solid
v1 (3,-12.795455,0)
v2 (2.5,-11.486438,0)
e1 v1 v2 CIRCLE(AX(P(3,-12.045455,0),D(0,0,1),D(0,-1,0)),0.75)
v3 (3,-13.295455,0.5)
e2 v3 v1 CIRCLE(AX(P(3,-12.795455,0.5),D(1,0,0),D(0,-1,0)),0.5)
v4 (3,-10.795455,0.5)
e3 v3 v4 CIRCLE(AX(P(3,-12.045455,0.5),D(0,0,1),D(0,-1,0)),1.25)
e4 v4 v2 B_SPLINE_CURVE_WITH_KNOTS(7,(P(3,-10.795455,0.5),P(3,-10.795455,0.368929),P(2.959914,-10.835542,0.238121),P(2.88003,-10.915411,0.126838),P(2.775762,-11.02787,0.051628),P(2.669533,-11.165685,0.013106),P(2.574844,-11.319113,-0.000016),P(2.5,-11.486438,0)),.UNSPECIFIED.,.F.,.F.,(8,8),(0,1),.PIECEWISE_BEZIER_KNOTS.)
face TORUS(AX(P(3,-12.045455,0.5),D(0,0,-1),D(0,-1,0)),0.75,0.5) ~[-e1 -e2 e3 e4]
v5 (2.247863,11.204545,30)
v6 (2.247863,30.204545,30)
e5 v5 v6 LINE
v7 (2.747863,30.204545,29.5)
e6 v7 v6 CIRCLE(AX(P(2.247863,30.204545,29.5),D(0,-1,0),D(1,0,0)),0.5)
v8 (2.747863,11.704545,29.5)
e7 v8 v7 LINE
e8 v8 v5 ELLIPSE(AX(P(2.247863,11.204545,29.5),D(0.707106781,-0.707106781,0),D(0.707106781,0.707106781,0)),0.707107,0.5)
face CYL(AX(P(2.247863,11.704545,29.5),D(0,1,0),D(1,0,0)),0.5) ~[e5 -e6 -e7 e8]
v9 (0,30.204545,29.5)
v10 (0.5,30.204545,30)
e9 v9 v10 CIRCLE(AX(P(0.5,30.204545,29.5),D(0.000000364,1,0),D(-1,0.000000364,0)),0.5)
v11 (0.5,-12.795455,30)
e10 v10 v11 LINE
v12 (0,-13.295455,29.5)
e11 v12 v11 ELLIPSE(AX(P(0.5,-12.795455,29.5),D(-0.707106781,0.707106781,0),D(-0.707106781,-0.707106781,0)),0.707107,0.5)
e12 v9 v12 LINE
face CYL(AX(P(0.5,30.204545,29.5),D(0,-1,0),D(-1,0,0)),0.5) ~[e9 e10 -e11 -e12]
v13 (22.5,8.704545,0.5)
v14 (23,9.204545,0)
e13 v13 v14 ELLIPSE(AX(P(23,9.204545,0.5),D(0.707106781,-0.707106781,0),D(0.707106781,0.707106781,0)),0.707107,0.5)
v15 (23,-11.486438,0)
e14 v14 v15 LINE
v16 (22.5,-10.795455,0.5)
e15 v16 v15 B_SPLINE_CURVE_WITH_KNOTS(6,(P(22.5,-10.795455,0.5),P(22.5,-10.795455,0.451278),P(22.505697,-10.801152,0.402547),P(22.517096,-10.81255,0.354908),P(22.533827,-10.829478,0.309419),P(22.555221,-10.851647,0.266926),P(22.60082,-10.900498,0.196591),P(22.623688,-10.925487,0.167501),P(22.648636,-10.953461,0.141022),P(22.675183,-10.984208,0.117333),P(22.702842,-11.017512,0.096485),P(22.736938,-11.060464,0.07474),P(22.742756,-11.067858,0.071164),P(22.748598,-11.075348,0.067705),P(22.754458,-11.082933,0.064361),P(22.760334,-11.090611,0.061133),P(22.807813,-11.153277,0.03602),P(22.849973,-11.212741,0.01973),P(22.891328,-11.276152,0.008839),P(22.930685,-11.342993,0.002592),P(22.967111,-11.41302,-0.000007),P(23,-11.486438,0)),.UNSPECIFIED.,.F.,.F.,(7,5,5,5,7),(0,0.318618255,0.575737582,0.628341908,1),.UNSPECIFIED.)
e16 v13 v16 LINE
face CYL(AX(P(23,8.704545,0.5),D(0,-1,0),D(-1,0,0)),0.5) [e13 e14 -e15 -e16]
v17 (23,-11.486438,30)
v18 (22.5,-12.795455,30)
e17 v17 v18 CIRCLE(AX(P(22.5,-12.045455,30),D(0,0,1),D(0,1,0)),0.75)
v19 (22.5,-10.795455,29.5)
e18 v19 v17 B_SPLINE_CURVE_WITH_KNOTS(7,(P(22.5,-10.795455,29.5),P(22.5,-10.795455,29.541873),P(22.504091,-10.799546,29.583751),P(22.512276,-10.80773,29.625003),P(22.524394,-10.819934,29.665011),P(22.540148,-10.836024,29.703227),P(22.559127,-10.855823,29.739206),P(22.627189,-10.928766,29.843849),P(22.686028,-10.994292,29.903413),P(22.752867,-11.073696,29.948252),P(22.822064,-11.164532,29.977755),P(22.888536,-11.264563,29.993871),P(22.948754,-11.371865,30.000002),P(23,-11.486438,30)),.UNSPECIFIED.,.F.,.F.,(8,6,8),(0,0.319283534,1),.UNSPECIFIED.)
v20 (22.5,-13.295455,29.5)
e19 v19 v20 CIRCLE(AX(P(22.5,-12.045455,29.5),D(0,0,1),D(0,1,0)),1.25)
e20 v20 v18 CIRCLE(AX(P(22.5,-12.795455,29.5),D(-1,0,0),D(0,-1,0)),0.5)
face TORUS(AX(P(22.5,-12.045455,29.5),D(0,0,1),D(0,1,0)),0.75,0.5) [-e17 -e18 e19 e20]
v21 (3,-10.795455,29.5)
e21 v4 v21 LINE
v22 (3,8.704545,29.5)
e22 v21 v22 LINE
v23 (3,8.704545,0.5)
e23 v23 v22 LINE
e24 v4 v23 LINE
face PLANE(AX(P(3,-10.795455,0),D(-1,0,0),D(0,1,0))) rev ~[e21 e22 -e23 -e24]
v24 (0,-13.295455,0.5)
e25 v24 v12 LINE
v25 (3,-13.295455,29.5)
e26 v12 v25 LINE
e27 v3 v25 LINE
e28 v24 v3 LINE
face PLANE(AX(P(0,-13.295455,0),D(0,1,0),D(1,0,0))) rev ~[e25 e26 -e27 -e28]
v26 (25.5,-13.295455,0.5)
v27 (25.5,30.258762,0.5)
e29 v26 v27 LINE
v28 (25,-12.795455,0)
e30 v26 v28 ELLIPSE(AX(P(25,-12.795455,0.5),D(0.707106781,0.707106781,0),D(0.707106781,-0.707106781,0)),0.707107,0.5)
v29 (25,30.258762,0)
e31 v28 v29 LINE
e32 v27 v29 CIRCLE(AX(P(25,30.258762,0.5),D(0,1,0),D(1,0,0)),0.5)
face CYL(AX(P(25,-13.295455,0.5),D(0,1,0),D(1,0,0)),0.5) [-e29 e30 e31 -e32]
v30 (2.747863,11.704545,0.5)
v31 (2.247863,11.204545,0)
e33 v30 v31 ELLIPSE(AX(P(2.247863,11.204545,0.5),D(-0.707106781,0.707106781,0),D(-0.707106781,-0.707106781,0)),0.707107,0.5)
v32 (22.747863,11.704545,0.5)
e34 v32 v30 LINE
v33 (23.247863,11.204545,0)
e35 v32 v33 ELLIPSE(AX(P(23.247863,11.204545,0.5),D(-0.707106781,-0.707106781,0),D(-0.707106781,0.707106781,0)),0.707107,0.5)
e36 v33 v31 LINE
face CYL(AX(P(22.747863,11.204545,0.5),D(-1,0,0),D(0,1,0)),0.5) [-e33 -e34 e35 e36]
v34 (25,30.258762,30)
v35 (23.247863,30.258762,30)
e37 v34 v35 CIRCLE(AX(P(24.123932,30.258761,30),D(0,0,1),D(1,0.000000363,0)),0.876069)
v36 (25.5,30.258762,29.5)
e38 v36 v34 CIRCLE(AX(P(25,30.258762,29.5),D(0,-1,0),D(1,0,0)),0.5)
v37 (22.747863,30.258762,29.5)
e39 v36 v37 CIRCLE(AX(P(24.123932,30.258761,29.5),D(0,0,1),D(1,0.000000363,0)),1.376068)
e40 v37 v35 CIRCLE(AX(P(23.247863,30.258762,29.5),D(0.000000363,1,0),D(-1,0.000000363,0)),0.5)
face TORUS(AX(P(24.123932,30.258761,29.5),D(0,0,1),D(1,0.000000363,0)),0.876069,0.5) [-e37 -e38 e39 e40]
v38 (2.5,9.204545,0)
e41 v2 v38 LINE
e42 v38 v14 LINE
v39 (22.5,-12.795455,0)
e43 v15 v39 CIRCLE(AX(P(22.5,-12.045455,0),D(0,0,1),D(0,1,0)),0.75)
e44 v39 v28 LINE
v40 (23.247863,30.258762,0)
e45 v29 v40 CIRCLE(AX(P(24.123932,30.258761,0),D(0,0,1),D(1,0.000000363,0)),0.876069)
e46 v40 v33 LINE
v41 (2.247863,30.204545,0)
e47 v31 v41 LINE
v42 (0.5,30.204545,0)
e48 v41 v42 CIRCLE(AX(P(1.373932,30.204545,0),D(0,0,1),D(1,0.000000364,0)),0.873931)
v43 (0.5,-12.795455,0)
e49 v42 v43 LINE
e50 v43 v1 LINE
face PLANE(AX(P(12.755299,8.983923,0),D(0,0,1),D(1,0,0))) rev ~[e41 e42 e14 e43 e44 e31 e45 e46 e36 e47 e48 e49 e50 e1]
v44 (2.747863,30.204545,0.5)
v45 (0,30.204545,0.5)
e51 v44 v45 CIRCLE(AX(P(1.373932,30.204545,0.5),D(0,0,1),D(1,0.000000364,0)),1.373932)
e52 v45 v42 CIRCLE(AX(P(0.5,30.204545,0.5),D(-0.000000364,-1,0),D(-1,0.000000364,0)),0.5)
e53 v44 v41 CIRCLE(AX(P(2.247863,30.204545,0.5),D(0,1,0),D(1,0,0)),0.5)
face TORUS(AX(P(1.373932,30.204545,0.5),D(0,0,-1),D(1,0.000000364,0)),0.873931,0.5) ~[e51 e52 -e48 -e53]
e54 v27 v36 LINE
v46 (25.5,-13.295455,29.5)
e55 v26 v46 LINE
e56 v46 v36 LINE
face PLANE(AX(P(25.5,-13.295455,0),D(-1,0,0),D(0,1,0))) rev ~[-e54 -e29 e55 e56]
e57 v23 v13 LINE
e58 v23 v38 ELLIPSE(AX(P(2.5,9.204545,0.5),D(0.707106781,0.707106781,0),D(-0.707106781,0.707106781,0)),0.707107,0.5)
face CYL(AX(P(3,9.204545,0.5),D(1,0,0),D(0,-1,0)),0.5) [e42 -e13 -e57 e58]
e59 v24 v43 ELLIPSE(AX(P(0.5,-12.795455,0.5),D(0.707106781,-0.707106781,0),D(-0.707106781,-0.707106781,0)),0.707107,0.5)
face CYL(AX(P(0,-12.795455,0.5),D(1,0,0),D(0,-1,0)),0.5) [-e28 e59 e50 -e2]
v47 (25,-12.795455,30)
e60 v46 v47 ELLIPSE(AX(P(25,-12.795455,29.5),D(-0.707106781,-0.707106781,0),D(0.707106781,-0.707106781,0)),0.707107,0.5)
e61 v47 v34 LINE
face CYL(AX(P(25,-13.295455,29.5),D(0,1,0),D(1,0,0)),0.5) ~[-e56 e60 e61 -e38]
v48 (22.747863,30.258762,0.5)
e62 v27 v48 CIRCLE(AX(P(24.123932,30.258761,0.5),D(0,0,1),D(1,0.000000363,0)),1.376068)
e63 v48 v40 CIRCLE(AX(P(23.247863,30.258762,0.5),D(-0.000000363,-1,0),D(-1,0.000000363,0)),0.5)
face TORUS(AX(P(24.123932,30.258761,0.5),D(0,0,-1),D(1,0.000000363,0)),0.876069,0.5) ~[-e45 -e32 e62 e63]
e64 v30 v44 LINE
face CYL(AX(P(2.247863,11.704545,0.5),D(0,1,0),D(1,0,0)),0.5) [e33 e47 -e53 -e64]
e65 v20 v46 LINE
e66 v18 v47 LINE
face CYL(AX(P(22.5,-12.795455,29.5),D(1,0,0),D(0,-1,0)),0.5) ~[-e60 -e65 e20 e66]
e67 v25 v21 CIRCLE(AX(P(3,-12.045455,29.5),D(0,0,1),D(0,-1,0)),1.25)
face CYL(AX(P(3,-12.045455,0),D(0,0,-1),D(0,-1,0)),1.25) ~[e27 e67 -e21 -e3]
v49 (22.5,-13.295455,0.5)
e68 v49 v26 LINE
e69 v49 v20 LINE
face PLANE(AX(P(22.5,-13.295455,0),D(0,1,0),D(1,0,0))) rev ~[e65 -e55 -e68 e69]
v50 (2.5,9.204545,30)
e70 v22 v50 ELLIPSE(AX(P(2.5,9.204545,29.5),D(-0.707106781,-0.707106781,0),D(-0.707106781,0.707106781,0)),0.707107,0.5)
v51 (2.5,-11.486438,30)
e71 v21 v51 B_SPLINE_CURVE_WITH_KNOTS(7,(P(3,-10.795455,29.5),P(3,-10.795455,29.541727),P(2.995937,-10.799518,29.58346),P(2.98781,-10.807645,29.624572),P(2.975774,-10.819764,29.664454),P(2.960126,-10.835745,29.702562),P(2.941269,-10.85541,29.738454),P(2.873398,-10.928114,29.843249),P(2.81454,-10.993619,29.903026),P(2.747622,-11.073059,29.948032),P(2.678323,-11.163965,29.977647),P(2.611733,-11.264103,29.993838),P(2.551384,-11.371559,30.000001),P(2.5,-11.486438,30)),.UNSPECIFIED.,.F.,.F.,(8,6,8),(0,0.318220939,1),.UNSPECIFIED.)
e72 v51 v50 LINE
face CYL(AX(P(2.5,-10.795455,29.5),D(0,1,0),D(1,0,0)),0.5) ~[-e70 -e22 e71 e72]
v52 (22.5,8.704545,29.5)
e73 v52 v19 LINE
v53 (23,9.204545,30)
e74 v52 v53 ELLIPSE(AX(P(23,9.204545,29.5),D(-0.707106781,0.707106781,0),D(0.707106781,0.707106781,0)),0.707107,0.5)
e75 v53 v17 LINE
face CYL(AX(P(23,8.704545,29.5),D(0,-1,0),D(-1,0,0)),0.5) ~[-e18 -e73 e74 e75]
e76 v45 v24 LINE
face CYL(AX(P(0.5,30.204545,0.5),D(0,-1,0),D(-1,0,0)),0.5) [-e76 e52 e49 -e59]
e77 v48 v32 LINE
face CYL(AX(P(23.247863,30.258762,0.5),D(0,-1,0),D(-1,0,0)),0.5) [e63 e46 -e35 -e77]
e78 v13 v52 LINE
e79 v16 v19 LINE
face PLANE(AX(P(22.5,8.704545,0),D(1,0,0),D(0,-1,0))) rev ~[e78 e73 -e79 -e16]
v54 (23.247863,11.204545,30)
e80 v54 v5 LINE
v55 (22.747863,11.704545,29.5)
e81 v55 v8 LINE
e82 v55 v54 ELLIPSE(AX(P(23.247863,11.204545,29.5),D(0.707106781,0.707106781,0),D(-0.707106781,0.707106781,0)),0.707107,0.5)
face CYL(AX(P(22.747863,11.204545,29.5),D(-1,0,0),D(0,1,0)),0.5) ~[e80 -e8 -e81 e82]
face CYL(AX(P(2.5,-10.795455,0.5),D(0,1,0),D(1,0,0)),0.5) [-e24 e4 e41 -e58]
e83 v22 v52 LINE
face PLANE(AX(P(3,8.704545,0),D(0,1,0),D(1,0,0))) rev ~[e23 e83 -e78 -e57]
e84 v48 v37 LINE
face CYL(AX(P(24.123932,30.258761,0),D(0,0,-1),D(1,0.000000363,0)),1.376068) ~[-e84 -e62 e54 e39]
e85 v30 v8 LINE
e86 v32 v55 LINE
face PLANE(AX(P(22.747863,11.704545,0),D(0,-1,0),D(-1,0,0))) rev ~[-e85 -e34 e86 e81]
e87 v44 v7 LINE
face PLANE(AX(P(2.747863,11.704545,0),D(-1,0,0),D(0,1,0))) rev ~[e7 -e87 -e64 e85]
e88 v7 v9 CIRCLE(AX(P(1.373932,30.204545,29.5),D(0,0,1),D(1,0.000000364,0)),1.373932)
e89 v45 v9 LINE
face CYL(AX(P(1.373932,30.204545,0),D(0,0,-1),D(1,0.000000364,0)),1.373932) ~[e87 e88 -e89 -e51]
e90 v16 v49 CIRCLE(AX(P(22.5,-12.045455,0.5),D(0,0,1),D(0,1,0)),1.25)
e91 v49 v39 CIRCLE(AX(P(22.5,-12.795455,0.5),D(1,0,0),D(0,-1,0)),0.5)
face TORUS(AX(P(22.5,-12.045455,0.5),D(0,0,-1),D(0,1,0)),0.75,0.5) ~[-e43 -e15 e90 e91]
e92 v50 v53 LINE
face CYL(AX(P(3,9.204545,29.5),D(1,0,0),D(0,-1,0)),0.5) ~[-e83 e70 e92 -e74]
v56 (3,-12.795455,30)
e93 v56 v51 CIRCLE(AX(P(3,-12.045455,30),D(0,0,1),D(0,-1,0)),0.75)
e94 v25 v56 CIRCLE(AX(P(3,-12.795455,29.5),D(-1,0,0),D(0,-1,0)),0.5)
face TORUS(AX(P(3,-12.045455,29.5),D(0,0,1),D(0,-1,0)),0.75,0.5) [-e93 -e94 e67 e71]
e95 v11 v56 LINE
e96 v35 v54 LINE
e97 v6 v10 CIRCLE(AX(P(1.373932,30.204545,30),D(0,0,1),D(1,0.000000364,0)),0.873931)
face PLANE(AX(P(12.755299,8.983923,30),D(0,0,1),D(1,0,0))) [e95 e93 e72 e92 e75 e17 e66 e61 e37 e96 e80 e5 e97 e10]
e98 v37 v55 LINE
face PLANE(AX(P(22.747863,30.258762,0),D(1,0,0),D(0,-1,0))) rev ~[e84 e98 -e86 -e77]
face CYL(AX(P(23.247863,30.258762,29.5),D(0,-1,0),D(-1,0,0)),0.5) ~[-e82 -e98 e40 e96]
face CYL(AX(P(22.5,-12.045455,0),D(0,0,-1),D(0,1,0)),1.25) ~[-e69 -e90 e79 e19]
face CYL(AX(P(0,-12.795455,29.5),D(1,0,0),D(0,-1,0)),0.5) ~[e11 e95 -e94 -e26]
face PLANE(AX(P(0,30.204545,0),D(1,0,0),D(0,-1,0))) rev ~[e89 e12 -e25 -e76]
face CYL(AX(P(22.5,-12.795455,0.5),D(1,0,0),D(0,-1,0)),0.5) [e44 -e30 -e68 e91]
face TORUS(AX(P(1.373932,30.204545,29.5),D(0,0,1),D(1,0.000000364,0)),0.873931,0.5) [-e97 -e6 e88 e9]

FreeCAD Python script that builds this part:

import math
import FreeCAD as App
import Part
import Sketcher
from FreeCAD import Vector
Q = App.Units.Quantity


def edges_at(feature, points):
    """Names of the edges that pass closest to the given points."""
    edges = feature.Shape.Edges
    near = lambda p: min(range(len(edges)), key=lambda i: edges[i].distToShape(Part.Vertex(*p))[0])
    return sorted({f"Edge{near(p) + 1}" for p in points})

doc = App.newDocument("Part")
body = doc.addObject("PartDesign::Body", "Body")

# Sketch on XY plane
sketch1 = doc.addObject("Sketcher::SketchObject", "Sketch")
body.addObject(sketch1)
sketch1.AttachmentSupport = (doc.XY_Plane, [""])
sketch1.MapMode = "FlatFace"
sketch1.addGeometry(Part.LineSegment(Vector(0, 30.2, 0), Vector(0, -13.3, 0)), False)
sketch1.addGeometry(Part.LineSegment(Vector(0, -13.3, 0), Vector(3, -13.3, 0)), False)
sketch1.addGeometry(Part.ArcOfCircle(Part.Circle(Vector(3, -12, 0), Vector(0, 0, 1), 1.2), math.radians(-90), math.radians(90)), False)
sketch1.addGeometry(Part.LineSegment(Vector(3, -10.8, 0), Vector(3, 8.7, 0)), False)
sketch1.addGeometry(Part.LineSegment(Vector(3, 8.7, 0), Vector(22.5, 8.7, 0)), False)
sketch1.addGeometry(Part.LineSegment(Vector(22.5, 8.7, 0), Vector(22.5, -10.8, 0)), False)
sketch1.addGeometry(Part.ArcOfCircle(Part.Circle(Vector(22.5, -12, 0), Vector(0, 0, 1), 1.2), math.radians(90), math.radians(270)), False)
sketch1.addGeometry(Part.LineSegment(Vector(22.5, -13.3, 0), Vector(25.5, -13.3, 0)), False)
sketch1.addGeometry(Part.LineSegment(Vector(25.5, -13.3, 0), Vector(25.5, 30.3, 0)), False)
sketch1.addGeometry(Part.ArcOfCircle(Part.Circle(Vector(24.1, 30.3, 0), Vector(0, 0, 1), 1.4), math.radians(0), math.radians(180)), False)
sketch1.addGeometry(Part.LineSegment(Vector(22.7, 30.3, 0), Vector(22.7, 11.7, 0)), False)
sketch1.addGeometry(Part.LineSegment(Vector(22.7, 11.7, 0), Vector(2.7, 11.7, 0)), False)
sketch1.addGeometry(Part.LineSegment(Vector(2.7, 11.7, 0), Vector(2.7, 30.2, 0)), False)
sketch1.addGeometry(Part.ArcOfCircle(Part.Circle(Vector(1.4, 30.2, 0), Vector(0, 0, 1), 1.4), math.radians(0), math.radians(180)), False)
sketch1.addConstraint(Sketcher.Constraint("Coincident", 0, 2, 1, 1))
sketch1.addConstraint(Sketcher.Constraint("Tangent", 1, 2, 2, 1))
sketch1.addConstraint(Sketcher.Constraint("Coincident", 2, 2, 3, 1))
sketch1.addConstraint(Sketcher.Constraint("Coincident", 3, 2, 4, 1))
sketch1.addConstraint(Sketcher.Constraint("Coincident", 4, 2, 5, 1))
sketch1.addConstraint(Sketcher.Constraint("Coincident", 5, 2, 6, 1))
sketch1.addConstraint(Sketcher.Constraint("Tangent", 6, 2, 7, 1))
sketch1.addConstraint(Sketcher.Constraint("Coincident", 7, 2, 8, 1))
sketch1.addConstraint(Sketcher.Constraint("Tangent", 8, 2, 9, 1))
sketch1.addConstraint(Sketcher.Constraint("Tangent", 9, 2, 10, 1))
sketch1.addConstraint(Sketcher.Constraint("Coincident", 10, 2, 11, 1))
sketch1.addConstraint(Sketcher.Constraint("Coincident", 11, 2, 12, 1))
sketch1.addConstraint(Sketcher.Constraint("Tangent", 12, 2, 13, 1))
sketch1.addConstraint(Sketcher.Constraint("Tangent", 13, 2, 0, 1))
sketch1.addConstraint(Sketcher.Constraint("Vertical", 0))
sketch1.addConstraint(Sketcher.Constraint("Horizontal", 1))
sketch1.addConstraint(Sketcher.Constraint("Vertical", 3))
sketch1.addConstraint(Sketcher.Constraint("Horizontal", 4))
sketch1.addConstraint(Sketcher.Constraint("Vertical", 5))
sketch1.addConstraint(Sketcher.Constraint("Horizontal", 7))
sketch1.addConstraint(Sketcher.Constraint("Vertical", 8))
sketch1.addConstraint(Sketcher.Constraint("Vertical", 10))
sketch1.addConstraint(Sketcher.Constraint("Horizontal", 11))
sketch1.addConstraint(Sketcher.Constraint("Vertical", 12))
sketch1.addConstraint(Sketcher.Constraint("Equal", 2, 6))
sketch1.addConstraint(Sketcher.Constraint("PointOnObject", 0, 2, -2))
sketch1.addConstraint(Sketcher.Constraint("Horizontal", 2, 3, 6, 3))
sketch1.addConstraint(Sketcher.Constraint("Vertical", 1, 2, 2, 2))
sketch1.addConstraint(Sketcher.Constraint("Vertical", 6, 3, 4, 2))
sketch1.addConstraint(Sketcher.Constraint("Equal", 1, 7))
sketch1.addConstraint(Sketcher.Constraint("Equal", 4, 3))
sketch1.addConstraint(Sketcher.Constraint("DistanceX", 1, 1, 1, 2, Q("3 mm")))
sketch1.addConstraint(Sketcher.Constraint("DistanceX", 11, 2, 11, 1, Q("20 mm")))
sketch1.addConstraint(Sketcher.Constraint("Radius", 2, Q("1.25 mm")))
sketch1.addConstraint(Sketcher.Constraint("DistanceX", 4, 1, 4, 2, Q("19.5 mm")))
sketch1.addConstraint(Sketcher.Constraint("DistanceY", 0, 2, 0, 1, Q("43.5 mm")))
sketch1.addConstraint(Sketcher.Constraint("DistanceY", 12, 1, 12, 2, Q("18.5 mm")))
sketch1.addConstraint(Sketcher.Constraint("Radius", 9, Q("1.376068 mm")))
sketch1.addConstraint(Sketcher.Constraint("DistanceY", 8, 1, 8, 2, Q("43.554217 mm")))
sketch1.addConstraint(Sketcher.Constraint("DistanceY", -1, 1, 9, 3, Q("30.258761 mm")))
pad1 = doc.addObject("PartDesign::Pad", "Pad")
body.addObject(pad1)
pad1.Profile = sketch1
pad1.Length = 30
doc.recompute()

fillet = doc.addObject("PartDesign::Fillet", "Fillet")
body.addObject(fillet)
fillet.Base = (pad1, edges_at(pad1, [
    (0, 8.455, 30),
    (3, -1.045, 30),
    (4.25, -12.045, 30),
    (12.748, 11.705, 30),
    (2.748, 20.955, 30),
    (1.374, 31.578, 30),
    (1.5, -13.295, 30),
    (12.75, 8.705, 30),
    (22.5, -1.045, 30),
    (21.25, -12.045, 30),
    (24, -13.295, 30),
    (25.5, 8.482, 30),
    (24.124, 31.635, 30),
    (22.748, 20.982, 30),
    (12.748, 11.705, 0),
    (2.748, 20.955, 0),
    (1.374, 31.578, 0),
    (0, 8.455, 0),
    (1.5, -13.295, 0),
    (4.25, -12.045, 0),
    (3, -1.045, 0),
    (12.75, 8.705, 0),
    (22.5, -1.045, 0),
    (21.25, -12.045, 0),
    (24, -13.295, 0),
    (25.5, 8.482, 0),
    (24.124, 31.635, 0),
    (22.748, 20.982, 0),
]))
fillet.Radius = 0.5

doc.recompute()
